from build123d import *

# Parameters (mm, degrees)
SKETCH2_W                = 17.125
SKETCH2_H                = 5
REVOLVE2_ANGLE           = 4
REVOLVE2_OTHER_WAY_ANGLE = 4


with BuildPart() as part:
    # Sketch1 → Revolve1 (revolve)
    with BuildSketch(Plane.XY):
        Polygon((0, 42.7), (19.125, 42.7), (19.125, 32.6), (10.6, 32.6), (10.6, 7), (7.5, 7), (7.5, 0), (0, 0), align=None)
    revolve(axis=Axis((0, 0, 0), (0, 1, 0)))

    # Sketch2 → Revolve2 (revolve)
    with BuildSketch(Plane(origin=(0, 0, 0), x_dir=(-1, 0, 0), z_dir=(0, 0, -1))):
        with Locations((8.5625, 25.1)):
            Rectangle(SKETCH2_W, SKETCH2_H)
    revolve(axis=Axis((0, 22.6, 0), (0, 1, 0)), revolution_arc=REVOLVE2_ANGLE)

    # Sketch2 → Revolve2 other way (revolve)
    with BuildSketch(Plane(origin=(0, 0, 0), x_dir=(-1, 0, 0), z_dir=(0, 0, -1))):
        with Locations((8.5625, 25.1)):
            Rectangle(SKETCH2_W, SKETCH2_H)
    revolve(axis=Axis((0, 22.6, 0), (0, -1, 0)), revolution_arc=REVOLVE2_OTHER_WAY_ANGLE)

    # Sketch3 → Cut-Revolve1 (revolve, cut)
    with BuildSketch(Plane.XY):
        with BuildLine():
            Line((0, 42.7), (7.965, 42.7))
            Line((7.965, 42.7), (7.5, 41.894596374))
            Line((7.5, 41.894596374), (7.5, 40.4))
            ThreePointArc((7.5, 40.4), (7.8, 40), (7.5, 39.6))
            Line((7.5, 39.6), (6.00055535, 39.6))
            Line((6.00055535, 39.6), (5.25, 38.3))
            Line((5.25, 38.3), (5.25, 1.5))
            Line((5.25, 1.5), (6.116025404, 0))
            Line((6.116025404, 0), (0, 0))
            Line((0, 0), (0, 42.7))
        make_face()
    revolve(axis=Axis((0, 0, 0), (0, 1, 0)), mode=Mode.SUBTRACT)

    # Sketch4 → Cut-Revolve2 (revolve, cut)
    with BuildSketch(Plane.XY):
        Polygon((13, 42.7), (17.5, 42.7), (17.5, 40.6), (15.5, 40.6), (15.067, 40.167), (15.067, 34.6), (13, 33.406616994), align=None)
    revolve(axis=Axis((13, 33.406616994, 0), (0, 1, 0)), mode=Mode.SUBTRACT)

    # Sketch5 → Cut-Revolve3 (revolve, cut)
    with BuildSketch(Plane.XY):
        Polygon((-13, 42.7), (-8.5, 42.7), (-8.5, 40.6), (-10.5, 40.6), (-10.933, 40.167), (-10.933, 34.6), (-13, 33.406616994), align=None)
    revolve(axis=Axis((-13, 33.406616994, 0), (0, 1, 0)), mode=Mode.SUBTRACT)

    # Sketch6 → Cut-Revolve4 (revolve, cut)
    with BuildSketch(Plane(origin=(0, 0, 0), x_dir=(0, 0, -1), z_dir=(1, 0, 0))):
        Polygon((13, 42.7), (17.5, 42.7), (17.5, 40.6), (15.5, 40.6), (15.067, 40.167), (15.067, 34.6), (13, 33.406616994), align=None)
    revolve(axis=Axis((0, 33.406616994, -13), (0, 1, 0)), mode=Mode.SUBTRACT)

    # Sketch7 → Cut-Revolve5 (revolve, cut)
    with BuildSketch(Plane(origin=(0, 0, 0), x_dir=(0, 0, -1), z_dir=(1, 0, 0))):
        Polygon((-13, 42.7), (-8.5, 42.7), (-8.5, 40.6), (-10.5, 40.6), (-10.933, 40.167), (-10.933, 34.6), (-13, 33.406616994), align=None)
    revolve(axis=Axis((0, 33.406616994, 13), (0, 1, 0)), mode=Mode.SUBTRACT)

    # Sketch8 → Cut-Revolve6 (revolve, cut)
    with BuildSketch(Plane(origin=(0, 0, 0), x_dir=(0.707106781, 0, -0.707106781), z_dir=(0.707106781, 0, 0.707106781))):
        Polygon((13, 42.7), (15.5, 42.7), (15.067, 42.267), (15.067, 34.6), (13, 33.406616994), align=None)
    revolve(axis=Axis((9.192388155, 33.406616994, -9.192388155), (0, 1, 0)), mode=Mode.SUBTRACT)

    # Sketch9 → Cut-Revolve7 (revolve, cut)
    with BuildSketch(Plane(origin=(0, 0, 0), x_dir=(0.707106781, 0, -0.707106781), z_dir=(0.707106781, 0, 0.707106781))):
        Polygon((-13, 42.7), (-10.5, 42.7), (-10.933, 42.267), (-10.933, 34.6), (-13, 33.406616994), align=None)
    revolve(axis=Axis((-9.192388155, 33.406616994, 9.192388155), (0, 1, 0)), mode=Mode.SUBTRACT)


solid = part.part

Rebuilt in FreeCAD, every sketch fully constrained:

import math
import FreeCAD as App
import Part
import Sketcher

V = App.Vector
Q = App.Units.Quantity


def add_polygon(sketch, points):
    """Adds a closed chain of lines whose ends are joined by coincident constraints."""
    first, n = sketch.GeometryCount, len(points)
    for a, b in zip(points, points[1:] + points[:1]):
        sketch.addGeometry(Part.LineSegment(App.Vector(*a, 0), App.Vector(*b, 0)), False)
    for i in range(n):
        sketch.addConstraint(Sketcher.Constraint("Coincident", first + i, 2, first + (i + 1) % n, 1))

doc = App.newDocument("Part")
params = doc.addObject("Spreadsheet::Sheet", "Params")
for row, (alias, value) in enumerate([
    ("sketch1_height", "7 mm"),
    ("sketch1_width", "7.5 mm"),
    ("sketch1_width2", "3.1 mm"),
    ("sketch1_height2", "42.7 mm"),
    ("sketch1_height3", "25.6 mm"),
    ("revolution_angle", "360 deg"),
    ("sketch2_height", "5 mm"),
    ("revolution2_angle", "4 deg"),
    ("sketch3_height", "5 mm"),
    ("revolution3_angle", "4 deg"),
    ("sketch4_height", "42.7 mm"),
    ("sketch4_height2", "36.8 mm"),
    ("sketch4_length", "0.93 mm"),
    ("groove_angle", "360 deg"),
    ("sketch5_width", "2 mm"),
    ("sketch5_width2", "4.5 mm"),
    ("sketch5_height", "2.1 mm"),
    ("groove2_angle", "360 deg"),
    ("sketch6_width", "2 mm"),
    ("sketch6_width2", "4.5 mm"),
    ("sketch6_height", "2.1 mm"),
    ("groove3_angle", "360 deg"),
    ("sketch7_height", "2 mm"),
    ("sketch7_width", "2.1 mm"),
    ("sketch7_height2", "4.5 mm"),
    ("groove4_angle", "360 deg"),
    ("sketch8_height", "2 mm"),
    ("sketch8_width", "2.1 mm"),
    ("sketch8_height2", "4.5 mm"),
    ("groove5_angle", "360 deg"),
    ("sketch9_width", "2.5 mm"),
    ("groove6_angle", "360 deg"),
    ("sketch10_width", "2.5 mm"),
    ("groove7_angle", "360 deg"),
], start=1):
    params.set(f"A{row}", alias)
    params.set(f"B{row}", "=" + value)
    params.setAlias(f"B{row}", alias)

body = doc.addObject("PartDesign::Body", "Body")

sketch1 = body.newObject("Sketcher::SketchObject", "Sketch")
sketch1.AttachmentSupport = (doc.getObject("XY_Plane"), [""])
sketch1.MapMode = "FlatFace"
add_polygon(sketch1, [(19.125, 42.7), (0, 42.7), (0, 0), (7.5, 0), (7.5, 7), (10.6, 7), (10.6, 32.6), (19.125, 32.6)])
sketch1.addConstraint([
    Sketcher.Constraint("Horizontal", 0),
    Sketcher.Constraint("Vertical", 1),
    Sketcher.Constraint("Horizontal", 2),
    Sketcher.Constraint("Vertical", 3),
    Sketcher.Constraint("Horizontal", 4),
    Sketcher.Constraint("Vertical", 5),
    Sketcher.Constraint("Horizontal", 6),
    Sketcher.Constraint("Vertical", 7),
    Sketcher.Constraint("Coincident", 1, 2, -1, 1),
    Sketcher.Constraint("DistanceY", 3, 1, 3, 2, Q("7 mm")),
    Sketcher.Constraint("DistanceX", 2, 1, 2, 2, Q("7.5 mm")),
    Sketcher.Constraint("DistanceX", 4, 1, 4, 2, Q("3.1 mm")),
    Sketcher.Constraint("DistanceY", 1, 2, 1, 1, Q("42.7 mm")),
    Sketcher.Constraint("DistanceY", 5, 1, 5, 2, Q("25.6 mm")),
    Sketcher.Constraint("DistanceX", 0, 2, 0, 1, Q("19.125 mm")),
])
sketch1.setExpression("Constraints[17]", "Params.sketch1_height")
sketch1.setExpression("Constraints[18]", "Params.sketch1_width")
sketch1.setExpression("Constraints[19]", "Params.sketch1_width2")
sketch1.setExpression("Constraints[20]", "Params.sketch1_height2")
sketch1.setExpression("Constraints[21]", "Params.sketch1_height3")
revolution = body.newObject("PartDesign::Revolution", "Revolution")
revolution.Profile = sketch1
revolution.ReferenceAxis = (sketch1, ["V_Axis"])
revolution.setExpression("Angle", "Params.revolution_angle")

sketch2 = body.newObject("Sketcher::SketchObject", "Sketch001")
sketch2.AttachmentSupport = (doc.getObject("XY_Plane"), [""])
sketch2.MapMode = "FlatFace"
add_polygon(sketch2, [(0, 27.6), (0, 22.6), (-17.125, 22.6), (-17.125, 27.6)])
sketch2.addConstraint([
    Sketcher.Constraint("Vertical", 0),
    Sketcher.Constraint("Horizontal", 1),
    Sketcher.Constraint("Vertical", 2),
    Sketcher.Constraint("Horizontal", 3),
    Sketcher.Constraint("PointOnObject", 0, 2, -2),
    Sketcher.Constraint("DistanceY", 0, 2, 0, 1, Q("5 mm")),
    Sketcher.Constraint("DistanceY", -1, 1, 0, 2, Q("22.6 mm")),
    Sketcher.Constraint("DistanceX", 1, 2, 1, 1, Q("17.125 mm")),
])
sketch2.setExpression("Constraints[9]", "Params.sketch2_height")
revolution2 = body.newObject("PartDesign::Revolution", "Revolution001")
revolution2.Profile = sketch2
revolution2.ReferenceAxis = (sketch2, ["V_Axis"])
revolution2.setExpression("Angle", "Params.revolution2_angle")

sketch3 = body.newObject("Sketcher::SketchObject", "Sketch002")
sketch3.AttachmentSupport = (doc.getObject("XY_Plane"), [""])
sketch3.MapMode = "FlatFace"
add_polygon(sketch3, [(0, 27.6), (0, 22.6), (-17.125, 22.6), (-17.125, 27.6)])
sketch3.addConstraint([
    Sketcher.Constraint("Vertical", 0),
    Sketcher.Constraint("Horizontal", 1),
    Sketcher.Constraint("Vertical", 2),
    Sketcher.Constraint("Horizontal", 3),
    Sketcher.Constraint("PointOnObject", 0, 2, -2),
    Sketcher.Constraint("DistanceY", 0, 2, 0, 1, Q("5 mm")),
    Sketcher.Constraint("DistanceY", -1, 1, 0, 2, Q("22.6 mm")),
    Sketcher.Constraint("DistanceX", 1, 2, 1, 1, Q("17.125 mm")),
])
sketch3.setExpression("Constraints[9]", "Params.sketch3_height")
revolution3 = body.newObject("PartDesign::Revolution", "Revolution002")
revolution3.Profile = sketch3
revolution3.ReferenceAxis = (sketch3, ["V_Axis"])
revolution3.setExpression("Angle", "Params.revolution3_angle")
revolution3.Reversed = True

sketch4 = body.newObject("Sketcher::SketchObject", "Sketch003")
sketch4.AttachmentSupport = (doc.getObject("XY_Plane"), [""])
sketch4.MapMode = "FlatFace"
sketch4.addGeometry([
    Part.LineSegment(V(7.965, 42.7, 0), V(0, 42.7, 0)),
    Part.LineSegment(V(0, 42.7, 0), V(0, 0, 0)),
    Part.LineSegment(V(0, 0, 0), V(6.116025, 0, 0)),
    Part.LineSegment(V(6.116025, 0, 0), V(5.25, 1.5, 0)),
    Part.LineSegment(V(5.25, 1.5, 0), V(5.25, 38.3, 0)),
    Part.LineSegment(V(5.25, 38.3, 0), V(6.000555, 39.6, 0)),
    Part.LineSegment(V(6.000555, 39.6, 0), V(7.5, 39.6, 0)),
    Part.ArcOfCircle(Part.Circle(V(7.383333, 40, 0), V(0, 0, 1), 0.416667), math.radians(-73.739795), math.radians(73.739795)),
    Part.LineSegment(V(7.5, 40.4, 0), V(7.5, 41.894596, 0)),
    Part.LineSegment(V(7.5, 41.894596, 0), V(7.965, 42.7, 0)),
], False)
sketch4.addConstraint([
    Sketcher.Constraint("Coincident", 0, 2, 1, 1),
    Sketcher.Constraint("Coincident", 1, 2, 2, 1),
    Sketcher.Constraint("Coincident", 2, 2, 3, 1),
    Sketcher.Constraint("Coincident", 3, 2, 4, 1),
    Sketcher.Constraint("Coincident", 4, 2, 5, 1),
    Sketcher.Constraint("Coincident", 5, 2, 6, 1),
    Sketcher.Constraint("Coincident", 6, 2, 7, 1),
    Sketcher.Constraint("Coincident", 7, 2, 8, 1),
    Sketcher.Constraint("Coincident", 8, 2, 9, 1),
    Sketcher.Constraint("Coincident", 9, 2, 0, 1),
    Sketcher.Constraint("Horizontal", 0),
    Sketcher.Constraint("Vertical", 1),
    Sketcher.Constraint("Horizontal", 2),
    Sketcher.Constraint("Vertical", 4),
    Sketcher.Constraint("Horizontal", 6),
    Sketcher.Constraint("Vertical", 8),
    Sketcher.Constraint("Coincident", 1, 2, -1, 1),
    Sketcher.Constraint("Parallel", 5, 9),
    Sketcher.Constraint("Vertical", 6, 2, 7, 2),
    Sketcher.Constraint("Angle", 3, Q("120 deg")),
    Sketcher.Constraint("Angle", 5, Q("60 deg")),
    Sketcher.Constraint("DistanceY", 1, 2, 1, 1, Q("42.7 mm")),
    Sketcher.Constraint("DistanceY", 4, 1, 4, 2, Q("36.8 mm")),
    Sketcher.Constraint("DistanceY", -1, 1, 7, 3, Q("40 mm")),
    Sketcher.Constraint("DistanceY", -1, 1, 3, 2, Q("1.5 mm")),
    Sketcher.Constraint("DistanceY", -1, 1, 5, 2, Q("39.6 mm")),
    Sketcher.Constraint("DistanceX", -1, 1, 6, 2, Q("7.5 mm")),
    Sketcher.Constraint("Distance", 9, Q("0.93 mm")),
    Sketcher.Constraint("DistanceX", -1, 1, 3, 2, Q("5.25 mm")),
    Sketcher.Constraint("Radius", 7, Q("0.416667 mm")),
])
sketch4.setExpression("Constraints[21]", "Params.sketch4_height")
sketch4.setExpression("Constraints[22]", "Params.sketch4_height2")
sketch4.setExpression("Constraints[27]", "Params.sketch4_length")
groove = body.newObject("PartDesign::Groove", "Groove")
groove.Profile = sketch4
groove.ReferenceAxis = (sketch4, ["V_Axis"])
groove.setExpression("Angle", "Params.groove_angle")

sketch5 = body.newObject("Sketcher::SketchObject", "Sketch004")
sketch5.AttachmentSupport = (doc.getObject("XY_Plane"), [""])
sketch5.MapMode = "FlatFace"
add_polygon(sketch5, [(17.5, 42.7), (13, 42.7), (13, 33.406617), (15.067, 34.6), (15.067, 40.167), (15.5, 40.6), (17.5, 40.6)])
sketch5.addGeometry(Part.LineSegment(V(13, 33.406617, 0), V(13, 42.7, 0)), True)
sketch5.addConstraint([
    Sketcher.Constraint("Horizontal", 0),
    Sketcher.Constraint("Vertical", 1),
    Sketcher.Constraint("Vertical", 3),
    Sketcher.Constraint("Horizontal", 5),
    Sketcher.Constraint("Vertical", 6),
    Sketcher.Constraint("Vertical", 7),
    Sketcher.Constraint("Coincident", 7, 1, 1, 2),
    Sketcher.Constraint("Horizontal", 6, 2, 7, 2),
    Sketcher.Constraint("DistanceX", 5, 1, 5, 2, Q("2 mm")),
    Sketcher.Constraint("Angle", 2, Q("30 deg")),
    Sketcher.Constraint("Angle", 4, Q("45 deg")),
    Sketcher.Constraint("DistanceX", 0, 2, 0, 1, Q("4.5 mm")),
    Sketcher.Constraint("DistanceY", 6, 1, 6, 2, Q("2.1 mm")),
    Sketcher.Constraint("DistanceX", -1, 1, 0, 2, Q("13 mm")),
    Sketcher.Constraint("DistanceY", 2, 2, 4, 2, Q("6 mm")),
    Sketcher.Constraint("DistanceY", -1, 1, 0, 2, Q("42.7 mm")),
    Sketcher.Constraint("DistanceY", 3, 1, 3, 2, Q("5.567 mm")),
])
sketch5.setExpression("Constraints[15]", "Params.sketch5_width")
sketch5.setExpression("Constraints[18]", "Params.sketch5_width2")
sketch5.setExpression("Constraints[19]", "Params.sketch5_height")
groove2 = body.newObject("PartDesign::Groove", "Groove001")
groove2.Profile = sketch5
groove2.ReferenceAxis = (sketch5, ["Axis0"])
groove2.setExpression("Angle", "Params.groove2_angle")

sketch6 = body.newObject("Sketcher::SketchObject", "Sketch005")
sketch6.AttachmentSupport = (doc.getObject("XY_Plane"), [""])
sketch6.MapMode = "FlatFace"
add_polygon(sketch6, [(-8.5, 42.7), (-13, 42.7), (-13, 33.406617), (-10.933, 34.6), (-10.933, 40.167), (-10.5, 40.6), (-8.5, 40.6)])
sketch6.addGeometry(Part.LineSegment(V(-13, 33.406617, 0), V(-13, 42.7, 0)), True)
sketch6.addConstraint([
    Sketcher.Constraint("Horizontal", 0),
    Sketcher.Constraint("Vertical", 1),
    Sketcher.Constraint("Vertical", 3),
    Sketcher.Constraint("Horizontal", 5),
    Sketcher.Constraint("Vertical", 6),
    Sketcher.Constraint("Vertical", 7),
    Sketcher.Constraint("Coincident", 7, 1, 1, 2),
    Sketcher.Constraint("Horizontal", 6, 2, 7, 2),
    Sketcher.Constraint("DistanceX", 5, 1, 5, 2, Q("2 mm")),
    Sketcher.Constraint("Angle", 2, Q("30 deg")),
    Sketcher.Constraint("Angle", 4, Q("45 deg")),
    Sketcher.Constraint("DistanceX", 0, 2, 0, 1, Q("4.5 mm")),
    Sketcher.Constraint("DistanceY", 6, 1, 6, 2, Q("2.1 mm")),
    Sketcher.Constraint("DistanceX", 0, 2, -1, 1, Q("13 mm")),
    Sketcher.Constraint("DistanceY", 2, 2, 4, 2, Q("6 mm")),
    Sketcher.Constraint("DistanceY", -1, 1, 0, 2, Q("42.7 mm")),
    Sketcher.Constraint("DistanceY", 3, 1, 3, 2, Q("5.567 mm")),
])
sketch6.setExpression("Constraints[15]", "Params.sketch6_width")
sketch6.setExpression("Constraints[18]", "Params.sketch6_width2")
sketch6.setExpression("Constraints[19]", "Params.sketch6_height")
groove3 = body.newObject("PartDesign::Groove", "Groove002")
groove3.Profile = sketch6
groove3.ReferenceAxis = (sketch6, ["Axis0"])
groove3.setExpression("Angle", "Params.groove3_angle")

sketch7 = body.newObject("Sketcher::SketchObject", "Sketch006")
sketch7.AttachmentSupport = (doc.getObject("YZ_Plane"), [""])
sketch7.MapMode = "FlatFace"
add_polygon(sketch7, [(42.7, -17.5), (42.7, -13), (33.406617, -13), (34.6, -15.067), (40.167, -15.067), (40.6, -15.5), (40.6, -17.5)])
sketch7.addGeometry(Part.LineSegment(V(33.406617, -13, 0), V(42.7, -13, 0)), True)
sketch7.addConstraint([
    Sketcher.Constraint("Vertical", 0),
    Sketcher.Constraint("Horizontal", 1),
    Sketcher.Constraint("Horizontal", 3),
    Sketcher.Constraint("Vertical", 5),
    Sketcher.Constraint("Horizontal", 6),
    Sketcher.Constraint("Horizontal", 7),
    Sketcher.Constraint("Coincident", 7, 1, 1, 2),
    Sketcher.Constraint("Vertical", 6, 2, 7, 2),
    Sketcher.Constraint("DistanceY", 5, 2, 5, 1, Q("2 mm")),
    Sketcher.Constraint("Angle", 2, Q("-60 deg")),
    Sketcher.Constraint("Angle", 4, Q("-45 deg")),
    Sketcher.Constraint("DistanceX", 6, 1, 6, 2, Q("2.1 mm")),
    Sketcher.Constraint("DistanceY", 0, 1, 0, 2, Q("4.5 mm")),
    Sketcher.Constraint("DistanceY", 0, 2, -1, 1, Q("13 mm")),
    Sketcher.Constraint("DistanceX", 2, 2, 4, 2, Q("6 mm")),
    Sketcher.Constraint("DistanceX", -1, 1, 0, 2, Q("42.7 mm")),
    Sketcher.Constraint("DistanceX", 3, 1, 3, 2, Q("5.567 mm")),
])
sketch7.setExpression("Constraints[15]", "Params.sketch7_height")
sketch7.setExpression("Constraints[18]", "Params.sketch7_width")
sketch7.setExpression("Constraints[19]", "Params.sketch7_height2")
groove4 = body.newObject("PartDesign::Groove", "Groove003")
groove4.Profile = sketch7
groove4.ReferenceAxis = (sketch7, ["Axis0"])
groove4.setExpression("Angle", "Params.groove4_angle")

sketch8 = body.newObject("Sketcher::SketchObject", "Sketch007")
sketch8.AttachmentSupport = (doc.getObject("YZ_Plane"), [""])
sketch8.MapMode = "FlatFace"
add_polygon(sketch8, [(42.7, 8.5), (42.7, 13), (33.406617, 13), (34.6, 10.933), (40.167, 10.933), (40.6, 10.5), (40.6, 8.5)])
sketch8.addGeometry(Part.LineSegment(V(33.406617, 13, 0), V(42.7, 13, 0)), True)
sketch8.addConstraint([
    Sketcher.Constraint("Vertical", 0),
    Sketcher.Constraint("Horizontal", 1),
    Sketcher.Constraint("Horizontal", 3),
    Sketcher.Constraint("Vertical", 5),
    Sketcher.Constraint("Horizontal", 6),
    Sketcher.Constraint("Horizontal", 7),
    Sketcher.Constraint("Coincident", 7, 1, 1, 2),
    Sketcher.Constraint("Vertical", 6, 2, 7, 2),
    Sketcher.Constraint("DistanceY", 5, 2, 5, 1, Q("2 mm")),
    Sketcher.Constraint("Angle", 2, Q("-60 deg")),
    Sketcher.Constraint("Angle", 4, Q("-45 deg")),
    Sketcher.Constraint("DistanceX", 6, 1, 6, 2, Q("2.1 mm")),
    Sketcher.Constraint("DistanceY", 0, 1, 0, 2, Q("4.5 mm")),
    Sketcher.Constraint("DistanceY", -1, 1, 0, 2, Q("13 mm")),
    Sketcher.Constraint("DistanceX", 2, 2, 4, 2, Q("6 mm")),
    Sketcher.Constraint("DistanceX", -1, 1, 0, 2, Q("42.7 mm")),
    Sketcher.Constraint("DistanceX", 3, 1, 3, 2, Q("5.567 mm")),
])
sketch8.setExpression("Constraints[15]", "Params.sketch8_height")
sketch8.setExpression("Constraints[18]", "Params.sketch8_width")
sketch8.setExpression("Constraints[19]", "Params.sketch8_height2")
groove5 = body.newObject("PartDesign::Groove", "Groove004")
groove5.Profile = sketch8
groove5.ReferenceAxis = (sketch8, ["Axis0"])
groove5.setExpression("Angle", "Params.groove5_angle")

sketch9 = body.newObject("Sketcher::SketchObject", "Sketch008")
sketch9.Placement = App.Placement(V(0, 0, 0), App.Rotation(V(0.707106781, 0, -0.707106781), V(0, 0.999999999, 0), V(0.707106781, 0, 0.707106781), "ZXY"))
add_polygon(sketch9, [(15.5, 42.7), (13, 42.7), (13, 33.406617), (15.067, 34.6), (15.067, 42.267)])
sketch9.addGeometry(Part.LineSegment(V(13, 33.406617, 0), V(13, 42.7, 0)), True)
sketch9.addConstraint([
    Sketcher.Constraint("Horizontal", 0),
    Sketcher.Constraint("Vertical", 1),
    Sketcher.Constraint("Vertical", 3),
    Sketcher.Constraint("Vertical", 5),
    Sketcher.Constraint("Coincident", 5, 1, 1, 2),
    Sketcher.Constraint("Horizontal", 4, 2, 5, 2),
    Sketcher.Constraint("Angle", 2, Q("30 deg")),
    Sketcher.Constraint("Angle", 4, Q("45 deg")),
    Sketcher.Constraint("DistanceX", 0, 2, 0, 1, Q("2.5 mm")),
    Sketcher.Constraint("DistanceX", -1, 1, 0, 2, Q("13 mm")),
    Sketcher.Constraint("DistanceY", -1, 1, 0, 2, Q("42.7 mm")),
    Sketcher.Constraint("DistanceY", -1, 1, 2, 2, Q("34.6 mm")),
    Sketcher.Constraint("DistanceY", 3, 1, 3, 2, Q("7.667 mm")),
])
sketch9.setExpression("Constraints[13]", "Params.sketch9_width")
groove6 = body.newObject("PartDesign::Groove", "Groove005")
groove6.Profile = sketch9
groove6.ReferenceAxis = (sketch9, ["Axis0"])
groove6.setExpression("Angle", "Params.groove6_angle")

sketch10 = body.newObject("Sketcher::SketchObject", "Sketch009")
sketch10.Placement = App.Placement(V(0, 0, 0), App.Rotation(V(0.707106781, 0, -0.707106781), V(0, 0.999999999, 0), V(0.707106781, 0, 0.707106781), "ZXY"))
add_polygon(sketch10, [(-10.5, 42.7), (-13, 42.7), (-13, 33.406617), (-10.933, 34.6), (-10.933, 42.267)])
sketch10.addGeometry(Part.LineSegment(V(-13, 33.406617, 0), V(-13, 42.7, 0)), True)
sketch10.addConstraint([
    Sketcher.Constraint("Horizontal", 0),
    Sketcher.Constraint("Vertical", 1),
    Sketcher.Constraint("Vertical", 3),
    Sketcher.Constraint("Vertical", 5),
    Sketcher.Constraint("Coincident", 5, 1, 1, 2),
    Sketcher.Constraint("Horizontal", 4, 2, 5, 2),
    Sketcher.Constraint("Angle", 2, Q("30 deg")),
    Sketcher.Constraint("Angle", 4, Q("45 deg")),
    Sketcher.Constraint("DistanceX", 0, 2, 0, 1, Q("2.5 mm")),
    Sketcher.Constraint("DistanceX", 0, 2, -1, 1, Q("13 mm")),
    Sketcher.Constraint("DistanceY", -1, 1, 0, 2, Q("42.7 mm")),
    Sketcher.Constraint("DistanceY", -1, 1, 2, 2, Q("34.6 mm")),
    Sketcher.Constraint("DistanceY", 3, 1, 3, 2, Q("7.667 mm")),
])
sketch10.setExpression("Constraints[13]", "Params.sketch10_width")
groove7 = body.newObject("PartDesign::Groove", "Groove006")
groove7.Profile = sketch10
groove7.ReferenceAxis = (sketch10, ["Axis0"])
groove7.setExpression("Angle", "Params.groove7_angle")

doc.recompute()
